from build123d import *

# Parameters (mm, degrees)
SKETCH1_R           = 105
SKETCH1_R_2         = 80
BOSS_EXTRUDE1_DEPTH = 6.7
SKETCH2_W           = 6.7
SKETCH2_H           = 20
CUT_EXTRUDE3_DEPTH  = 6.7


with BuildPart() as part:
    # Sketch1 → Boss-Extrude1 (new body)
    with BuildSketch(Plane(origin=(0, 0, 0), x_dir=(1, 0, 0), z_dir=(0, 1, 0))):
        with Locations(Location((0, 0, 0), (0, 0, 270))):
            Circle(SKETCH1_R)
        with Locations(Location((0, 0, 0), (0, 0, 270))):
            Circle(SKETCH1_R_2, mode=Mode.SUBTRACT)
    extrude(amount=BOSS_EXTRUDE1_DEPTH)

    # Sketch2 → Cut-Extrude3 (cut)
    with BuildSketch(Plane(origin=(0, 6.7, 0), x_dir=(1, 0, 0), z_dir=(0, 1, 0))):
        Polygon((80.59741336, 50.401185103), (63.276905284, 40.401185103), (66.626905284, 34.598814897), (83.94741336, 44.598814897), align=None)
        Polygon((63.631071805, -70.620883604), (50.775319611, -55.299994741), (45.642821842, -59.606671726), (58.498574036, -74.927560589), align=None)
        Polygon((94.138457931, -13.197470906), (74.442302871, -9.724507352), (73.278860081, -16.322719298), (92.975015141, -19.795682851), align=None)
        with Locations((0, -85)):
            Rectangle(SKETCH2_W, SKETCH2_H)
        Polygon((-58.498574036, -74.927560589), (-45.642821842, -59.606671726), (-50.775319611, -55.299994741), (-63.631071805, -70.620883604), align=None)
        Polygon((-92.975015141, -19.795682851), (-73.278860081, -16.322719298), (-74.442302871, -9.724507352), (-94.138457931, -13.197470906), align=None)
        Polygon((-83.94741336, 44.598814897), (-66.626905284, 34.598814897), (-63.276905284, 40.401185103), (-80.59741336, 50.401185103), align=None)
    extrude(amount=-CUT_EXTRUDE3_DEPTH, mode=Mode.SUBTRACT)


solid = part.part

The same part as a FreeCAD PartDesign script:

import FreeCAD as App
import Part
import Sketcher
Q = App.Units.Quantity


def add_polygon(sketch, points):
    """Adds a closed chain of lines whose ends are joined by coincident constraints."""
    first, n = sketch.GeometryCount, len(points)
    for a, b in zip(points, points[1:] + points[:1]):
        sketch.addGeometry(Part.LineSegment(App.Vector(*a, 0), App.Vector(*b, 0)), False)
    for i in range(n):
        sketch.addConstraint(Sketcher.Constraint("Coincident", first + i, 2, first + (i + 1) % n, 1))

doc = App.newDocument("Part")
body = doc.addObject("PartDesign::Body", "Body")

# Sketch on XZ plane
sketch1 = body.newObject("Sketcher::SketchObject", "Sketch")
sketch1.AttachmentSupport = (doc.getObject("XZ_Plane"), [""])
sketch1.MapMode = "FlatFace"
sketch1.addGeometry([
    Part.Circle(App.Vector(0, 0, 0), App.Vector(0, 0, 1), 105),
    Part.Circle(App.Vector(0, 0, 0), App.Vector(0, 0, 1), 80),
], False)
sketch1.addConstraint([
    Sketcher.Constraint("Coincident", 0, 3, -1, 1),
    Sketcher.Constraint("Coincident", 1, 3, -1, 1),
    Sketcher.Constraint("Diameter", 0, 210.0),
    Sketcher.Constraint("Diameter", 1, 160.0),
])
pad1 = body.newObject("PartDesign::Pad", "Pad")
pad1.Profile = sketch1
pad1.Length = 6.7
pad1.Reversed = True

# Sketch on XZ plane
sketch2 = body.newObject("Sketcher::SketchObject", "Sketch001")
sketch2.AttachmentSupport = (doc.getObject("XZ_Plane"), [""])
sketch2.MapMode = "FlatFace"
sketch2.AttachmentOffset = App.Placement(App.Vector(0, 0, -6.7), App.Rotation())
add_polygon(sketch2, [(80.597413, -50.401185), (63.276905, -40.401185), (66.626905, -34.598815), (83.947413, -44.598815)])  # lines 0-3
add_polygon(sketch2, [(63.631072, 70.620884), (50.77532, 55.299995), (45.642822, 59.606672), (58.498574, 74.927561)])  # lines 4-7
add_polygon(sketch2, [(94.138458, 13.197471), (74.442303, 9.724507), (73.27886, 16.322719), (92.975015, 19.795683)])  # lines 8-11
add_polygon(sketch2, [(-3.35, 75), (-3.35, 95), (3.35, 95), (3.35, 75)])  # lines 12-15
add_polygon(sketch2, [(-58.498574, 74.927561), (-45.642822, 59.606672), (-50.77532, 55.299995), (-63.631072, 70.620884)])  # lines 16-19
add_polygon(sketch2, [(-92.975015, 19.795683), (-73.27886, 16.322719), (-74.442303, 9.724507), (-94.138458, 13.197471)])  # lines 20-23
add_polygon(sketch2, [(-83.947413, -44.598815), (-66.626905, -34.598815), (-63.276905, -40.401185), (-80.597413, -50.401185)])  # lines 24-27
sketch2.addConstraint([
    Sketcher.Constraint("Vertical", 12),
    Sketcher.Constraint("Horizontal", 13),
    Sketcher.Constraint("Vertical", 14),
    Sketcher.Constraint("Horizontal", 15),
    Sketcher.Constraint("Symmetric", 5, 2, 16, 2, -2),
    Sketcher.Constraint("Symmetric", 4, 2, 17, 2, -2),
    Sketcher.Constraint("Symmetric", 7, 2, 18, 2, -2),
    Sketcher.Constraint("Symmetric", 6, 2, 19, 2, -2),
    Sketcher.Constraint("Symmetric", 9, 2, 20, 2, -2),
    Sketcher.Constraint("Symmetric", 8, 2, 21, 2, -2),
    Sketcher.Constraint("Symmetric", 11, 2, 22, 2, -2),
    Sketcher.Constraint("Symmetric", 10, 2, 23, 2, -2),
    Sketcher.Constraint("Symmetric", 1, 2, 24, 2, -2),
    Sketcher.Constraint("Symmetric", 0, 2, 25, 2, -2),
    Sketcher.Constraint("Symmetric", 3, 2, 26, 2, -2),
    Sketcher.Constraint("Symmetric", 2, 2, 27, 2, -2),
    Sketcher.Constraint("Perpendicular", 0, 1),
    Sketcher.Constraint("Perpendicular", 1, 2),
    Sketcher.Constraint("Perpendicular", 2, 3),
    Sketcher.Constraint("Perpendicular", 4, 5),
    Sketcher.Constraint("Perpendicular", 5, 6),
    Sketcher.Constraint("Perpendicular", 6, 7),
    Sketcher.Constraint("Perpendicular", 8, 9),
    Sketcher.Constraint("Perpendicular", 9, 10),
    Sketcher.Constraint("Perpendicular", 10, 11),
    Sketcher.Constraint("Equal", 2, 4),
    Sketcher.Constraint("Equal", 3, 5),
    Sketcher.Constraint("Equal", 6, 8),
    Sketcher.Constraint("Equal", 7, 9),
    Sketcher.Constraint("DistanceY", 12, 1, 12, 2, 20.0),
    Sketcher.Constraint("Angle", 0, Q("150 deg")),
    Sketcher.Constraint("Angle", 4, Q("-130 deg")),
    Sketcher.Constraint("Angle", 8, Q("-170 deg")),
    Sketcher.Constraint("Distance", 0, 20.0),
    Sketcher.Constraint("DistanceX", 13, 1, 13, 2, 6.7),
    Sketcher.Constraint("DistanceY", -1, 1, 12, 2, 95.0),
    Sketcher.Constraint("Distance", 1, 6.7),
    Sketcher.Constraint("DistanceX", 12, 2, -1, 1, 3.35),
    Sketcher.Constraint("DistanceY", 1, 2, 7, 2, 105.219699),
    Sketcher.Constraint("DistanceY", 10, 2, 7, 2, 50.825201),
    Sketcher.Constraint("DistanceX", -1, 1, 4, 2, 50.77532),
    Sketcher.Constraint("DistanceY", -1, 1, 5, 2, 59.606672),
    Sketcher.Constraint("DistanceX", -1, 1, 9, 2, 73.27886),
    Sketcher.Constraint("DistanceX", 5, 2, 2, 2, 38.304592),
])
pocket1 = body.newObject("PartDesign::Pocket", "Pocket")
pocket1.Profile = sketch2
pocket1.Length = 6.7
pocket1.Reversed = True

doc.recompute()
